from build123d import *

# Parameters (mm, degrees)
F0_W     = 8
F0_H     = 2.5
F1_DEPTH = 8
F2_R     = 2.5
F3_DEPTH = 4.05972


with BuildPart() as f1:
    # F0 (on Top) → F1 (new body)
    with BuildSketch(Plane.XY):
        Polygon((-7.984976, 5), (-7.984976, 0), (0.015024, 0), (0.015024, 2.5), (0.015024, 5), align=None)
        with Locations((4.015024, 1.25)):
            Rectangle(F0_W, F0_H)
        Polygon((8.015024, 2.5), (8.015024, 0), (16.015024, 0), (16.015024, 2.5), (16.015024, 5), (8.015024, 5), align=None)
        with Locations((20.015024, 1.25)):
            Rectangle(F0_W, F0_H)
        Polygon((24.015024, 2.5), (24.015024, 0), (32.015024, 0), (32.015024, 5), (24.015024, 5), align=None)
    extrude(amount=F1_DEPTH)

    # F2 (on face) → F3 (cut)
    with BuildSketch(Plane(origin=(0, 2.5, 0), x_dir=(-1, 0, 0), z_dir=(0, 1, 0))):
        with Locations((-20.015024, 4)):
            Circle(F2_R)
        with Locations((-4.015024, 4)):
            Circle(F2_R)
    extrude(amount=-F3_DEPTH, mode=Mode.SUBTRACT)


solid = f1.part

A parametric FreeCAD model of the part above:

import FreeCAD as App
import Part
import Sketcher
from FreeCAD import Vector


def add_polygon(sketch, points):
    """Adds a closed chain of lines whose ends are joined by coincident constraints."""
    first, n = sketch.GeometryCount, len(points)
    for a, b in zip(points, points[1:] + points[:1]):
        sketch.addGeometry(Part.LineSegment(App.Vector(*a, 0), App.Vector(*b, 0)), False)
    for i in range(n):
        sketch.addConstraint(Sketcher.Constraint("Coincident", first + i, 2, first + (i + 1) % n, 1))

doc = App.newDocument("Part")
body = doc.addObject("PartDesign::Body", "Body")

# Sketch on XY plane
sketch1 = body.newObject("Sketcher::SketchObject", "Sketch")
sketch1.AttachmentSupport = (doc.getObject("XY_Plane"), [""])
sketch1.MapMode = "FlatFace"
add_polygon(sketch1, [(-8, 5), (-8, 0), (32, 0), (32, 5), (24, 5), (24, 2.5), (16, 2.5), (16, 5), (8, 5), (8, 2.5), (0, 2.5), (0, 5)])  # lines 0-11
sketch1.addConstraint(Sketcher.Constraint("Vertical", 0))
sketch1.addConstraint(Sketcher.Constraint("Horizontal", 1))
sketch1.addConstraint(Sketcher.Constraint("Vertical", 2))
sketch1.addConstraint(Sketcher.Constraint("Horizontal", 3))
sketch1.addConstraint(Sketcher.Constraint("Vertical", 4))
sketch1.addConstraint(Sketcher.Constraint("Horizontal", 5))
sketch1.addConstraint(Sketcher.Constraint("Vertical", 6))
sketch1.addConstraint(Sketcher.Constraint("Horizontal", 7))
sketch1.addConstraint(Sketcher.Constraint("Vertical", 8))
sketch1.addConstraint(Sketcher.Constraint("Horizontal", 9))
sketch1.addConstraint(Sketcher.Constraint("Vertical", 10))
sketch1.addConstraint(Sketcher.Constraint("Horizontal", 11))
sketch1.addConstraint(Sketcher.Constraint("PointOnObject", 0, 2, -1))
sketch1.addConstraint(Sketcher.Constraint("Horizontal", 3, 2, 6, 2))
sketch1.addConstraint(Sketcher.Constraint("Horizontal", 5, 2, 8, 2))
sketch1.addConstraint(Sketcher.Constraint("Horizontal", 7, 2, 10, 2))
sketch1.addConstraint(Sketcher.Constraint("Equal", 3, 5))
sketch1.addConstraint(Sketcher.Constraint("Equal", 5, 7))
sketch1.addConstraint(Sketcher.Constraint("Equal", 7, 9))
sketch1.addConstraint(Sketcher.Constraint("Equal", 9, 11))
sketch1.addConstraint(Sketcher.Constraint("DistanceX", 1, 1, 1, 2, 40.0))
sketch1.addConstraint(Sketcher.Constraint("DistanceY", 0, 2, 0, 1, 5.0))
sketch1.addConstraint(Sketcher.Constraint("DistanceY", 4, 2, 4, 1, 2.5))
sketch1.addConstraint(Sketcher.Constraint("DistanceX", 0, 2, -1, 1, 7.984976))
pad1 = body.newObject("PartDesign::Pad", "Pad")
pad1.Profile = sketch1
pad1.Length = 8

# Sketch on XZ plane
sketch2 = body.newObject("Sketcher::SketchObject", "Sketch001")
sketch2.AttachmentSupport = (doc.getObject("XZ_Plane"), [""])
sketch2.MapMode = "FlatFace"
sketch2.AttachmentOffset = App.Placement(Vector(0, 0, -2.5), App.Rotation())
sketch2.addGeometry(Part.Circle(Vector(20, 4, 0), Vector(0, 0, 1), 2.5), False)
sketch2.addGeometry(Part.Circle(Vector(4, 4, 0), Vector(0, 0, 1), 2.5), False)
sketch2.addConstraint(Sketcher.Constraint("Equal", 0, 1))
sketch2.addConstraint(Sketcher.Constraint("Horizontal", 0, 3, 1, 3))
sketch2.addConstraint(Sketcher.Constraint("Diameter", 0, 5.0))
sketch2.addConstraint(Sketcher.Constraint("DistanceY", -1, 1, 0, 3, 4.0))
sketch2.addConstraint(Sketcher.Constraint("DistanceX", 1, 3, 0, 3, 16.0))
sketch2.addConstraint(Sketcher.Constraint("DistanceX", -1, 1, 0, 3, 20.015024))
pocket1 = body.newObject("PartDesign::Pocket", "Pocket")
pocket1.Profile = sketch2
pocket1.Length = 4.05972
pocket1.Reversed = True

doc.recompute()
